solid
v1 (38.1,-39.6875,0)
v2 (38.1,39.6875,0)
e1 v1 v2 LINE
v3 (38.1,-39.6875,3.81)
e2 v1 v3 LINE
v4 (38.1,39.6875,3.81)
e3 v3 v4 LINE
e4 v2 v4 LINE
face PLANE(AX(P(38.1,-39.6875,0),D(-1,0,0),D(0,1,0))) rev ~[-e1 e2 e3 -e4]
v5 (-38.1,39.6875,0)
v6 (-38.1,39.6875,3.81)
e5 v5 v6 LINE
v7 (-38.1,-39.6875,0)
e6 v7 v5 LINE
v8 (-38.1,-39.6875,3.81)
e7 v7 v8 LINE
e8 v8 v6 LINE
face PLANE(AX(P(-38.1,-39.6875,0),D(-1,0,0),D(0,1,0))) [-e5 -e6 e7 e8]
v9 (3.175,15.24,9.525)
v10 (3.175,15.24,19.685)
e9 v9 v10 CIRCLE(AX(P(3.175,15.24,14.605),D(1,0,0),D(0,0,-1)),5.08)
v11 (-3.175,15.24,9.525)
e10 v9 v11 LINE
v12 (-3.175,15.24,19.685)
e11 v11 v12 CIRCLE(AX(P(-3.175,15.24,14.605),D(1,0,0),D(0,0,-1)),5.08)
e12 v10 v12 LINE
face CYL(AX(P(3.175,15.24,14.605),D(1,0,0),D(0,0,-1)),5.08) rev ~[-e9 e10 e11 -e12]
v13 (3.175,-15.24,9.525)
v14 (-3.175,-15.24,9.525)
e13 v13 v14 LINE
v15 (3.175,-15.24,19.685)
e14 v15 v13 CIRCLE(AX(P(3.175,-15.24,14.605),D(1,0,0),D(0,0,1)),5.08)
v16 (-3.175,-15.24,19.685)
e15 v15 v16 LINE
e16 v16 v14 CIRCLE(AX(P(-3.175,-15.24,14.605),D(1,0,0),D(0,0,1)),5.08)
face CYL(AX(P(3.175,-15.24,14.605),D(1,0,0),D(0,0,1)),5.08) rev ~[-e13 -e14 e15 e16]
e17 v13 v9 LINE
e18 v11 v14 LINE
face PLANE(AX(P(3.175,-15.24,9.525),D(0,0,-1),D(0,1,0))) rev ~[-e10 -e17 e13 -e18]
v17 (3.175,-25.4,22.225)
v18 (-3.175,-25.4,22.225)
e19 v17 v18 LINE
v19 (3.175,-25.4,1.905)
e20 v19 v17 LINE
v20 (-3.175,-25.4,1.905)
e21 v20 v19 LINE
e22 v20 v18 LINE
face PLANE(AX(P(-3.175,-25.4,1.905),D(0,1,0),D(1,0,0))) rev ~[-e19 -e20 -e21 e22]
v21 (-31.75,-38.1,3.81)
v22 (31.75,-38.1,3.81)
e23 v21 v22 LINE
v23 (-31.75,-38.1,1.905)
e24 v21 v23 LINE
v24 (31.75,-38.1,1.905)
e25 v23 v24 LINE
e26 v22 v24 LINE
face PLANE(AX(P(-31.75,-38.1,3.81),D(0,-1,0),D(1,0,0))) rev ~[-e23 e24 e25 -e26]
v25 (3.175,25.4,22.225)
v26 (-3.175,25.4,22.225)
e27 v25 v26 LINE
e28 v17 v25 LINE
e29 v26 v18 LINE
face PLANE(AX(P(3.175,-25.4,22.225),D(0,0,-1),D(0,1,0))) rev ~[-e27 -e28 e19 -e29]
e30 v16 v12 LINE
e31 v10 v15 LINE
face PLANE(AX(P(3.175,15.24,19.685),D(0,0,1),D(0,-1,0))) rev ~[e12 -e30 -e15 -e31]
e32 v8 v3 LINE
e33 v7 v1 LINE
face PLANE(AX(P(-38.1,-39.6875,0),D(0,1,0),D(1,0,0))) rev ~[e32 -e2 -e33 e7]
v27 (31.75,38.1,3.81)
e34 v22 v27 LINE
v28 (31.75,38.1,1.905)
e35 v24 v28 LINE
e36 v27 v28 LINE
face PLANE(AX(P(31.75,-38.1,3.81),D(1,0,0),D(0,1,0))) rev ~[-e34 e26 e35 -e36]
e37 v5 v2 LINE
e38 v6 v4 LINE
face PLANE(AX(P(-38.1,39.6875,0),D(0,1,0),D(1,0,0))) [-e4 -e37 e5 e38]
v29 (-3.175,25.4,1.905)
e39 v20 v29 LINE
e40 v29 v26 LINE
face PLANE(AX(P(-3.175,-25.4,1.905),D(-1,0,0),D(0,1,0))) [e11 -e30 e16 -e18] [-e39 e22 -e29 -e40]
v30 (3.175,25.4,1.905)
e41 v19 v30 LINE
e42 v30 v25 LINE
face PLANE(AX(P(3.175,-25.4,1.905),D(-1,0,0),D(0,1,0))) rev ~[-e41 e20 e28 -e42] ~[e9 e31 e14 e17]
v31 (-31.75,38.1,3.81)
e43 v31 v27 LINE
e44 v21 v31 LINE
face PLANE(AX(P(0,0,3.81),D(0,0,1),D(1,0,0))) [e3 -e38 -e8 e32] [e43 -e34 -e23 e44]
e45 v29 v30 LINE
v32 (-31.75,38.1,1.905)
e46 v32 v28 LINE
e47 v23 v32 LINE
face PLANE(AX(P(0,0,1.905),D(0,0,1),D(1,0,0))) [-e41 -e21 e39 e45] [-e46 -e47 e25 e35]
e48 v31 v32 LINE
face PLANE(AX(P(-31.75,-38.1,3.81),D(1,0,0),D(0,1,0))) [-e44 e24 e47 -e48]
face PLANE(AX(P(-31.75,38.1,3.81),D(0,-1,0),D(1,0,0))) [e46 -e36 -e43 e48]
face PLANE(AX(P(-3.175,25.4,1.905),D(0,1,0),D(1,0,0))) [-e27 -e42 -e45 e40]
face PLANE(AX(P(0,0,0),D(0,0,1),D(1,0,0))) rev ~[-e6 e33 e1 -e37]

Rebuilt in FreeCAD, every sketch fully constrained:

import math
import FreeCAD as App
import Part
import Sketcher

V = App.Vector
Q = App.Units.Quantity


def add_polygon(sketch, points):
    """Adds a closed chain of lines whose ends are joined by coincident constraints."""
    first, n = sketch.GeometryCount, len(points)
    for a, b in zip(points, points[1:] + points[:1]):
        sketch.addGeometry(Part.LineSegment(App.Vector(*a, 0), App.Vector(*b, 0)), False)
    for i in range(n):
        sketch.addConstraint(Sketcher.Constraint("Coincident", first + i, 2, first + (i + 1) % n, 1))

doc = App.newDocument("Part")
body = doc.addObject("PartDesign::Body", "Body")

# Sketch on XY plane
sketch1 = body.newObject("Sketcher::SketchObject", "Sketch")
sketch1.AttachmentSupport = (doc.getObject("XY_Plane"), [""])
sketch1.MapMode = "FlatFace"
add_polygon(sketch1, [(-38.1, 39.6875), (-38.1, -39.6875), (38.1, -39.6875), (38.1, 39.6875)])  # lines 0-3
sketch1.addConstraint(Sketcher.Constraint("Vertical", 0))
sketch1.addConstraint(Sketcher.Constraint("Horizontal", 1))
sketch1.addConstraint(Sketcher.Constraint("Vertical", 2))
sketch1.addConstraint(Sketcher.Constraint("Horizontal", 3))
sketch1.addConstraint(Sketcher.Constraint("Symmetric", 0, 2, 2, 2, -1, 1))
sketch1.addConstraint(Sketcher.Constraint("DistanceX", 1, 1, 1, 2, Q("3 in")))
sketch1.addConstraint(Sketcher.Constraint("DistanceY", 0, 2, 0, 1, Q("3.125 in")))
pad1 = body.newObject("PartDesign::Pad", "Pad")
pad1.Profile = sketch1
pad1.Length = Q("0.15 in")

# Sketch on XY plane
sketch2 = body.newObject("Sketcher::SketchObject", "Sketch001")
sketch2.AttachmentSupport = (doc.getObject("XY_Plane"), [""])
sketch2.MapMode = "FlatFace"
sketch2.AttachmentOffset = App.Placement(V(0, 0, 0.15 * 25.4), App.Rotation())
add_polygon(sketch2, [(-31.75, 38.1), (-31.75, -38.1), (31.75, -38.1), (31.75, 38.1)])  # lines 0-3
sketch2.addConstraint(Sketcher.Constraint("Vertical", 0))
sketch2.addConstraint(Sketcher.Constraint("Horizontal", 1))
sketch2.addConstraint(Sketcher.Constraint("Vertical", 2))
sketch2.addConstraint(Sketcher.Constraint("Horizontal", 3))
sketch2.addConstraint(Sketcher.Constraint("Symmetric", 0, 2, 2, 2, -1, 1))
sketch2.addConstraint(Sketcher.Constraint("DistanceY", 0, 2, 0, 1, Q("3 in")))
sketch2.addConstraint(Sketcher.Constraint("DistanceX", 1, 1, 1, 2, Q("2.5 in")))
pocket1 = body.newObject("PartDesign::Pocket", "Pocket")
pocket1.Profile = sketch2
pocket1.Length = Q("0.075 in")

# Sketch on XY plane
sketch3 = body.newObject("Sketcher::SketchObject", "Sketch002")
sketch3.AttachmentSupport = (doc.getObject("XY_Plane"), [""])
sketch3.MapMode = "FlatFace"
sketch3.AttachmentOffset = App.Placement(V(0, 0, 0.075 * 25.4), App.Rotation())
add_polygon(sketch3, [(-3.175, 25.4), (-3.175, -25.4), (3.175, -25.4), (3.175, 25.4)])  # lines 0-3
sketch3.addConstraint(Sketcher.Constraint("Vertical", 0))
sketch3.addConstraint(Sketcher.Constraint("Horizontal", 1))
sketch3.addConstraint(Sketcher.Constraint("Vertical", 2))
sketch3.addConstraint(Sketcher.Constraint("Horizontal", 3))
sketch3.addConstraint(Sketcher.Constraint("Symmetric", 0, 2, 2, 2, -1, 1))
sketch3.addConstraint(Sketcher.Constraint("DistanceY", 0, 2, 0, 1, Q("2 in")))
sketch3.addConstraint(Sketcher.Constraint("DistanceX", 1, 1, 1, 2, Q("0.25 in")))
pad2 = body.newObject("PartDesign::Pad", "Pad001")
pad2.Profile = sketch3
pad2.Length = Q("1 in")

# Sketch on YZ plane
sketch4 = body.newObject("Sketcher::SketchObject", "Sketch003")
sketch4.AttachmentSupport = (doc.getObject("YZ_Plane"), [""])
sketch4.MapMode = "FlatFace"
sketch4.AttachmentOffset = App.Placement(V(0, 0, 0.125 * 25.4), App.Rotation())
sketch4.addGeometry(Part.ArcOfCircle(Part.Circle(V(15.24, 14.605, 0), V(0, 0, 1), 5.08), math.radians(-90), math.radians(90)), False)
sketch4.addGeometry(Part.LineSegment(V(15.24, 19.685, 0), V(-15.24, 19.685, 0)), False)
sketch4.addGeometry(Part.ArcOfCircle(Part.Circle(V(-15.24, 14.605, 0), V(0, 0, 1), 5.08), math.radians(90), math.radians(270)), False)
sketch4.addGeometry(Part.LineSegment(V(-15.24, 9.525, 0), V(15.24, 9.525, 0)), False)
sketch4.addConstraint(Sketcher.Constraint("Tangent", 0, 2, 1, 1))
sketch4.addConstraint(Sketcher.Constraint("Tangent", 1, 2, 2, 1))
sketch4.addConstraint(Sketcher.Constraint("Tangent", 2, 2, 3, 1))
sketch4.addConstraint(Sketcher.Constraint("Tangent", 3, 2, 0, 1))
sketch4.addConstraint(Sketcher.Constraint("Horizontal", 1))
sketch4.addConstraint(Sketcher.Constraint("Horizontal", 3))
sketch4.addConstraint(Sketcher.Constraint("Radius", 0, Q("0.2 in")))
sketch4.addConstraint(Sketcher.Constraint("DistanceX", 1, 2, 1, 1, Q("1.2 in")))
sketch4.addConstraint(Sketcher.Constraint("DistanceX", -1, 1, 0, 3, Q("0.6 in")))
sketch4.addConstraint(Sketcher.Constraint("DistanceY", -1, 1, 0, 3, Q("0.575 in")))
pocket2 = body.newObject("PartDesign::Pocket", "Pocket001")
pocket2.Profile = sketch4
pocket2.Length = Q("1 in")

# Sketch on YZ plane
sketch5 = body.newObject("Sketcher::SketchObject", "Sketch004")
sketch5.AttachmentSupport = (doc.getObject("YZ_Plane"), [""])
sketch5.MapMode = "FlatFace"
sketch5.AttachmentOffset = App.Placement(V(0, 0, 0.125 * 25.4), App.Rotation())
add_polygon(sketch5, [(-25.4, 27.305), (-25.4, 22.225), (25.4, 22.225), (25.4, 27.305)])  # lines 0-3
sketch5.addConstraint(Sketcher.Constraint("Vertical", 0))
sketch5.addConstraint(Sketcher.Constraint("Horizontal", 1))
sketch5.addConstraint(Sketcher.Constraint("Vertical", 2))
sketch5.addConstraint(Sketcher.Constraint("Horizontal", 3))
sketch5.addConstraint(Sketcher.Constraint("DistanceX", 1, 1, 1, 2, Q("2 in")))
sketch5.addConstraint(Sketcher.Constraint("DistanceY", 0, 2, 0, 1, Q("0.2 in")))
sketch5.addConstraint(Sketcher.Constraint("DistanceX", 0, 2, -1, 1, Q("1 in")))
sketch5.addConstraint(Sketcher.Constraint("DistanceY", -1, 1, 0, 2, Q("0.875 in")))
pocket3 = body.newObject("PartDesign::Pocket", "Pocket002")
pocket3.Profile = sketch5
pocket3.Length = Q("1 in")

doc.recompute()
